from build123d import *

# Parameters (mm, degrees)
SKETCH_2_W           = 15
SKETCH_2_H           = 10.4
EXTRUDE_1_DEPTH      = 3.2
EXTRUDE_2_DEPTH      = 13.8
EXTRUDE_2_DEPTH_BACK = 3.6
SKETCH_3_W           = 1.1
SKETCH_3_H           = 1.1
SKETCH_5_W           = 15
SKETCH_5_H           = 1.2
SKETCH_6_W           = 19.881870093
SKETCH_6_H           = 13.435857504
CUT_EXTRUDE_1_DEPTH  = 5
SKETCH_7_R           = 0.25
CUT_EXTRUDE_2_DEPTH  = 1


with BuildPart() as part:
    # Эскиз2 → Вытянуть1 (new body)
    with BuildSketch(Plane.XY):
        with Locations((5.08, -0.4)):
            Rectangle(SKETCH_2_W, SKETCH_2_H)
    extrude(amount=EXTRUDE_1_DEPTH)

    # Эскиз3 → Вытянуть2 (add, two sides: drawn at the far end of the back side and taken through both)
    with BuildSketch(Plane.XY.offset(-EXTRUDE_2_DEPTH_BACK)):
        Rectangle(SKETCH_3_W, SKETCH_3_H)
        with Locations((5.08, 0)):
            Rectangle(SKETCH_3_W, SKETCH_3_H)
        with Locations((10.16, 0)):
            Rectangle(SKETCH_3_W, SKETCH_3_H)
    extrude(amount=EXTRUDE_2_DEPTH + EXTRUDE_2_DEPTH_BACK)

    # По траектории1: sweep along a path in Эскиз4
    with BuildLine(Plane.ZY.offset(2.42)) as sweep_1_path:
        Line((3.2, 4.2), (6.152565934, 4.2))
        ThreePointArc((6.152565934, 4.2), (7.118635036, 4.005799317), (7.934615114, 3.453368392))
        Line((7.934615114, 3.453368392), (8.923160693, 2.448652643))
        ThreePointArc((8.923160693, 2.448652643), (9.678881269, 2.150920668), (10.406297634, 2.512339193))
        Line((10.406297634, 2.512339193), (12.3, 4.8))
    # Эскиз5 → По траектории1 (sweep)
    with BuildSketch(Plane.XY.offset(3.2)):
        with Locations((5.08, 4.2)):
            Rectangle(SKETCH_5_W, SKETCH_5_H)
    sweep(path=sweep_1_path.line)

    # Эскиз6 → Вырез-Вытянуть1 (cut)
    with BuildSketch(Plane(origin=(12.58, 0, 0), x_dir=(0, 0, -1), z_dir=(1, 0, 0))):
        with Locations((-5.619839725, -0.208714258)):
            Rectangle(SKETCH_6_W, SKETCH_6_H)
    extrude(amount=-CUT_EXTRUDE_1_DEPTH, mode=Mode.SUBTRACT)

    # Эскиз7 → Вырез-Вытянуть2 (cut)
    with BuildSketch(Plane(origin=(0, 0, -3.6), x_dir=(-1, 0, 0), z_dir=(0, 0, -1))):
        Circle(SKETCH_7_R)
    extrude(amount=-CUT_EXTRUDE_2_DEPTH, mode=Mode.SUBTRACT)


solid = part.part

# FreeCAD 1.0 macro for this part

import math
import FreeCAD as App
import Part
import Sketcher


def add_polygon(sketch, points):
    """Adds a closed chain of lines whose ends are joined by coincident constraints."""
    first, n = sketch.GeometryCount, len(points)
    for a, b in zip(points, points[1:] + points[:1]):
        sketch.addGeometry(Part.LineSegment(App.Vector(*a, 0), App.Vector(*b, 0)), False)
    for i in range(n):
        sketch.addConstraint(Sketcher.Constraint("Coincident", first + i, 2, first + (i + 1) % n, 1))

doc = App.newDocument("Part")
body = doc.addObject("PartDesign::Body", "Body")

# Sketch on XY plane
sketch1 = body.newObject("Sketcher::SketchObject", "Sketch")
sketch1.AttachmentSupport = (doc.getObject("XY_Plane"), [""])
sketch1.MapMode = "FlatFace"
add_polygon(sketch1, [(-2, 5), (-2, -6), (13, -6), (13, 5)])  # lines 0-3
sketch1.addConstraint(Sketcher.Constraint("Vertical", 0))
sketch1.addConstraint(Sketcher.Constraint("Horizontal", 1))
sketch1.addConstraint(Sketcher.Constraint("Vertical", 2))
sketch1.addConstraint(Sketcher.Constraint("Horizontal", 3))
sketch1.addConstraint(Sketcher.Constraint("DistanceX", 1, 1, 1, 2, 15.0))
sketch1.addConstraint(Sketcher.Constraint("DistanceY", 0, 2, 0, 1, 10.4))
sketch1.addConstraint(Sketcher.Constraint("DistanceY", 0, 2, -1, 1, 5.6))
sketch1.addConstraint(Sketcher.Constraint("DistanceX", 0, 2, -1, 1, 2.42))
pad1 = body.newObject("PartDesign::Pad", "Pad")
pad1.Profile = sketch1
pad1.Length = 3.2

# Sketch on XY plane
sketch2 = body.newObject("Sketcher::SketchObject", "Sketch001")
sketch2.AttachmentSupport = (doc.getObject("XY_Plane"), [""])
sketch2.MapMode = "FlatFace"
add_polygon(sketch2, [(-0.6, 0.6), (-0.6, -0.6), (0.6, -0.6), (0.6, 0.6)])  # lines 0-3
add_polygon(sketch2, [(4.5, 0.6), (4.5, -0.6), (5.6, -0.6), (5.6, 0.6)])  # lines 4-7
add_polygon(sketch2, [(9.6, 0.6), (9.6, -0.6), (10.7, -0.6), (10.7, 0.6)])  # lines 8-11
sketch2.addConstraint(Sketcher.Constraint("Vertical", 0))
sketch2.addConstraint(Sketcher.Constraint("Horizontal", 1))
sketch2.addConstraint(Sketcher.Constraint("Vertical", 2))
sketch2.addConstraint(Sketcher.Constraint("Horizontal", 3))
sketch2.addConstraint(Sketcher.Constraint("Vertical", 4))
sketch2.addConstraint(Sketcher.Constraint("Horizontal", 5))
sketch2.addConstraint(Sketcher.Constraint("Vertical", 6))
sketch2.addConstraint(Sketcher.Constraint("Horizontal", 7))
sketch2.addConstraint(Sketcher.Constraint("Vertical", 8))
sketch2.addConstraint(Sketcher.Constraint("Horizontal", 9))
sketch2.addConstraint(Sketcher.Constraint("Vertical", 10))
sketch2.addConstraint(Sketcher.Constraint("Horizontal", 11))
sketch2.addConstraint(Sketcher.Constraint("Symmetric", 0, 2, 2, 2, -1, 1))
sketch2.addConstraint(Sketcher.Constraint("Horizontal", 1, 2, 4, 2))
sketch2.addConstraint(Sketcher.Constraint("Horizontal", 3, 2, 6, 2))
sketch2.addConstraint(Sketcher.Constraint("Horizontal", 5, 2, 8, 2))
sketch2.addConstraint(Sketcher.Constraint("Horizontal", 7, 2, 10, 2))
sketch2.addConstraint(Sketcher.Constraint("Equal", 3, 5))
sketch2.addConstraint(Sketcher.Constraint("Equal", 7, 9))
sketch2.addConstraint(Sketcher.Constraint("Equal", 11, 0))
sketch2.addConstraint(Sketcher.Constraint("DistanceX", 1, 1, 1, 2, 1.1))
sketch2.addConstraint(Sketcher.Constraint("DistanceX", -1, 1, 4, 2, 4.53))
sketch2.addConstraint(Sketcher.Constraint("DistanceX", -1, 1, 8, 2, 9.61))
pad2 = body.newObject("PartDesign::Pad", "Pad001")
pad2.Profile = sketch2
pad2.Type = "TwoLengths"
pad2.Length = 13.8
pad2.Length2 = 3.6

# Sketch on XY plane
sketch3 = body.newObject("Sketcher::SketchObject", "Sketch002")
sketch3.AttachmentSupport = (doc.getObject("XY_Plane"), [""])
sketch3.MapMode = "FlatFace"
sketch3.AttachmentOffset = App.Placement(App.Vector(0, 0, 3.2), App.Rotation())
add_polygon(sketch3, [(-2.4, 4.8), (-2.4, 3.6), (12.6, 3.6), (12.6, 4.8)])  # lines 0-3
sketch3.addConstraint(Sketcher.Constraint("Vertical", 0))
sketch3.addConstraint(Sketcher.Constraint("Horizontal", 1))
sketch3.addConstraint(Sketcher.Constraint("Vertical", 2))
sketch3.addConstraint(Sketcher.Constraint("Horizontal", 3))
sketch3.addConstraint(Sketcher.Constraint("DistanceX", 1, 1, 1, 2, 15.0))
sketch3.addConstraint(Sketcher.Constraint("DistanceY", 0, 2, 0, 1, 1.2))
sketch3.addConstraint(Sketcher.Constraint("DistanceY", -1, 1, 0, 2, 3.6))
sketch3.addConstraint(Sketcher.Constraint("DistanceX", 0, 2, -1, 1, 2.42))

# Sketch on YZ plane
sketch4 = body.newObject("Sketcher::SketchObject", "Sketch003")
sketch4.AttachmentSupport = (doc.getObject("YZ_Plane"), [""])
sketch4.MapMode = "FlatFace"
sketch4.AttachmentOffset = App.Placement(App.Vector(0, 0, -2.42), App.Rotation())
sketch4.addGeometry(Part.LineSegment(App.Vector(4.2, 3.2, 0), App.Vector(4.2, 6.2, 0)), False)
sketch4.addGeometry(Part.ArcOfCircle(Part.Circle(App.Vector(1.7, 6.2, 0), App.Vector(0, 0, 1), 2.5), math.radians(0), math.radians(45)), False)
sketch4.addGeometry(Part.LineSegment(App.Vector(3.5, 7.9, 0), App.Vector(2.4, 8.9, 0)), False)
sketch4.addGeometry(Part.ArcOfCircle(Part.Circle(App.Vector(3.2, 9.6, 0), App.Vector(0, 0, 1), 1), math.radians(130), math.radians(225)), False)
sketch4.addGeometry(Part.LineSegment(App.Vector(2.5, 10.4, 0), App.Vector(4.8, 12.3, 0)), False)
sketch4.addConstraint(Sketcher.Constraint("Tangent", 0, 2, 1, 1))
sketch4.addConstraint(Sketcher.Constraint("Tangent", 1, 2, 2, 1))
sketch4.addConstraint(Sketcher.Constraint("Tangent", 2, 2, 3, 2))
sketch4.addConstraint(Sketcher.Constraint("Tangent", 3, 1, 4, 1))
sketch4.addConstraint(Sketcher.Constraint("Vertical", 0))
sketch4.addConstraint(Sketcher.Constraint("Radius", 3, 1.0))
sketch4.addConstraint(Sketcher.Constraint("Radius", 1, 2.5))
sketch4.addConstraint(Sketcher.Constraint("DistanceX", -1, 1, 1, 3, 1.7))
sketch4.addConstraint(Sketcher.Constraint("DistanceY", -1, 1, 0, 1, 3.2))
sketch4.addConstraint(Sketcher.Constraint("DistanceX", -1, 1, 4, 2, 4.8))
sketch4.addConstraint(Sketcher.Constraint("DistanceY", -1, 1, 4, 2, 12.3))
sketch4.addConstraint(Sketcher.Constraint("DistanceX", -1, 1, 3, 3, 3.15))
sketch4.addConstraint(Sketcher.Constraint("DistanceY", 0, 1, 0, 2, 2.952566))
sketch4.addConstraint(Sketcher.Constraint("DistanceY", -1, 1, 3, 3, 9.63598))
doc.recompute()

additivepipe = body.newObject("PartDesign::AdditivePipe", "AdditivePipe")
additivepipe.Profile = sketch3
additivepipe.Spine = (sketch4, ["Edge1", "Edge2", "Edge3", "Edge4", "Edge5"])

# Sketch on YZ plane
sketch5 = body.newObject("Sketcher::SketchObject", "Sketch004")
sketch5.AttachmentSupport = (doc.getObject("YZ_Plane"), [""])
sketch5.MapMode = "FlatFace"
sketch5.AttachmentOffset = App.Placement(App.Vector(0, 0, 12.58), App.Rotation())
add_polygon(sketch5, [(7, 16), (-7, 16), (-7, -4), (7, -4)])  # lines 0-3
sketch5.addConstraint(Sketcher.Constraint("Horizontal", 0))
sketch5.addConstraint(Sketcher.Constraint("Vertical", 1))
sketch5.addConstraint(Sketcher.Constraint("Horizontal", 2))
sketch5.addConstraint(Sketcher.Constraint("Vertical", 3))
sketch5.addConstraint(Sketcher.Constraint("DistanceY", 1, 2, 1, 1, 19.88187))
sketch5.addConstraint(Sketcher.Constraint("DistanceX", 0, 2, 0, 1, 13.435858))
sketch5.addConstraint(Sketcher.Constraint("DistanceX", 0, 2, -1, 1, 6.926643))
sketch5.addConstraint(Sketcher.Constraint("DistanceY", -1, 1, 0, 2, 15.560775))
pocket1 = body.newObject("PartDesign::Pocket", "Pocket")
pocket1.Profile = sketch5
pocket1.Length = 5

# Sketch on XY plane
sketch6 = body.newObject("Sketcher::SketchObject", "Sketch005")
sketch6.AttachmentSupport = (doc.getObject("XY_Plane"), [""])
sketch6.MapMode = "FlatFace"
sketch6.AttachmentOffset = App.Placement(App.Vector(0, 0, -3.6), App.Rotation())
sketch6.addGeometry(Part.Circle(App.Vector(0, 0, 0), App.Vector(0, 0, 1), 0.25), False)
sketch6.addConstraint(Sketcher.Constraint("Coincident", 0, 3, -1, 1))
sketch6.addConstraint(Sketcher.Constraint("Diameter", 0, 0.5))
pocket2 = body.newObject("PartDesign::Pocket", "Pocket001")
pocket2.Profile = sketch6
pocket2.Length = 1
pocket2.Reversed = True

doc.recompute()
